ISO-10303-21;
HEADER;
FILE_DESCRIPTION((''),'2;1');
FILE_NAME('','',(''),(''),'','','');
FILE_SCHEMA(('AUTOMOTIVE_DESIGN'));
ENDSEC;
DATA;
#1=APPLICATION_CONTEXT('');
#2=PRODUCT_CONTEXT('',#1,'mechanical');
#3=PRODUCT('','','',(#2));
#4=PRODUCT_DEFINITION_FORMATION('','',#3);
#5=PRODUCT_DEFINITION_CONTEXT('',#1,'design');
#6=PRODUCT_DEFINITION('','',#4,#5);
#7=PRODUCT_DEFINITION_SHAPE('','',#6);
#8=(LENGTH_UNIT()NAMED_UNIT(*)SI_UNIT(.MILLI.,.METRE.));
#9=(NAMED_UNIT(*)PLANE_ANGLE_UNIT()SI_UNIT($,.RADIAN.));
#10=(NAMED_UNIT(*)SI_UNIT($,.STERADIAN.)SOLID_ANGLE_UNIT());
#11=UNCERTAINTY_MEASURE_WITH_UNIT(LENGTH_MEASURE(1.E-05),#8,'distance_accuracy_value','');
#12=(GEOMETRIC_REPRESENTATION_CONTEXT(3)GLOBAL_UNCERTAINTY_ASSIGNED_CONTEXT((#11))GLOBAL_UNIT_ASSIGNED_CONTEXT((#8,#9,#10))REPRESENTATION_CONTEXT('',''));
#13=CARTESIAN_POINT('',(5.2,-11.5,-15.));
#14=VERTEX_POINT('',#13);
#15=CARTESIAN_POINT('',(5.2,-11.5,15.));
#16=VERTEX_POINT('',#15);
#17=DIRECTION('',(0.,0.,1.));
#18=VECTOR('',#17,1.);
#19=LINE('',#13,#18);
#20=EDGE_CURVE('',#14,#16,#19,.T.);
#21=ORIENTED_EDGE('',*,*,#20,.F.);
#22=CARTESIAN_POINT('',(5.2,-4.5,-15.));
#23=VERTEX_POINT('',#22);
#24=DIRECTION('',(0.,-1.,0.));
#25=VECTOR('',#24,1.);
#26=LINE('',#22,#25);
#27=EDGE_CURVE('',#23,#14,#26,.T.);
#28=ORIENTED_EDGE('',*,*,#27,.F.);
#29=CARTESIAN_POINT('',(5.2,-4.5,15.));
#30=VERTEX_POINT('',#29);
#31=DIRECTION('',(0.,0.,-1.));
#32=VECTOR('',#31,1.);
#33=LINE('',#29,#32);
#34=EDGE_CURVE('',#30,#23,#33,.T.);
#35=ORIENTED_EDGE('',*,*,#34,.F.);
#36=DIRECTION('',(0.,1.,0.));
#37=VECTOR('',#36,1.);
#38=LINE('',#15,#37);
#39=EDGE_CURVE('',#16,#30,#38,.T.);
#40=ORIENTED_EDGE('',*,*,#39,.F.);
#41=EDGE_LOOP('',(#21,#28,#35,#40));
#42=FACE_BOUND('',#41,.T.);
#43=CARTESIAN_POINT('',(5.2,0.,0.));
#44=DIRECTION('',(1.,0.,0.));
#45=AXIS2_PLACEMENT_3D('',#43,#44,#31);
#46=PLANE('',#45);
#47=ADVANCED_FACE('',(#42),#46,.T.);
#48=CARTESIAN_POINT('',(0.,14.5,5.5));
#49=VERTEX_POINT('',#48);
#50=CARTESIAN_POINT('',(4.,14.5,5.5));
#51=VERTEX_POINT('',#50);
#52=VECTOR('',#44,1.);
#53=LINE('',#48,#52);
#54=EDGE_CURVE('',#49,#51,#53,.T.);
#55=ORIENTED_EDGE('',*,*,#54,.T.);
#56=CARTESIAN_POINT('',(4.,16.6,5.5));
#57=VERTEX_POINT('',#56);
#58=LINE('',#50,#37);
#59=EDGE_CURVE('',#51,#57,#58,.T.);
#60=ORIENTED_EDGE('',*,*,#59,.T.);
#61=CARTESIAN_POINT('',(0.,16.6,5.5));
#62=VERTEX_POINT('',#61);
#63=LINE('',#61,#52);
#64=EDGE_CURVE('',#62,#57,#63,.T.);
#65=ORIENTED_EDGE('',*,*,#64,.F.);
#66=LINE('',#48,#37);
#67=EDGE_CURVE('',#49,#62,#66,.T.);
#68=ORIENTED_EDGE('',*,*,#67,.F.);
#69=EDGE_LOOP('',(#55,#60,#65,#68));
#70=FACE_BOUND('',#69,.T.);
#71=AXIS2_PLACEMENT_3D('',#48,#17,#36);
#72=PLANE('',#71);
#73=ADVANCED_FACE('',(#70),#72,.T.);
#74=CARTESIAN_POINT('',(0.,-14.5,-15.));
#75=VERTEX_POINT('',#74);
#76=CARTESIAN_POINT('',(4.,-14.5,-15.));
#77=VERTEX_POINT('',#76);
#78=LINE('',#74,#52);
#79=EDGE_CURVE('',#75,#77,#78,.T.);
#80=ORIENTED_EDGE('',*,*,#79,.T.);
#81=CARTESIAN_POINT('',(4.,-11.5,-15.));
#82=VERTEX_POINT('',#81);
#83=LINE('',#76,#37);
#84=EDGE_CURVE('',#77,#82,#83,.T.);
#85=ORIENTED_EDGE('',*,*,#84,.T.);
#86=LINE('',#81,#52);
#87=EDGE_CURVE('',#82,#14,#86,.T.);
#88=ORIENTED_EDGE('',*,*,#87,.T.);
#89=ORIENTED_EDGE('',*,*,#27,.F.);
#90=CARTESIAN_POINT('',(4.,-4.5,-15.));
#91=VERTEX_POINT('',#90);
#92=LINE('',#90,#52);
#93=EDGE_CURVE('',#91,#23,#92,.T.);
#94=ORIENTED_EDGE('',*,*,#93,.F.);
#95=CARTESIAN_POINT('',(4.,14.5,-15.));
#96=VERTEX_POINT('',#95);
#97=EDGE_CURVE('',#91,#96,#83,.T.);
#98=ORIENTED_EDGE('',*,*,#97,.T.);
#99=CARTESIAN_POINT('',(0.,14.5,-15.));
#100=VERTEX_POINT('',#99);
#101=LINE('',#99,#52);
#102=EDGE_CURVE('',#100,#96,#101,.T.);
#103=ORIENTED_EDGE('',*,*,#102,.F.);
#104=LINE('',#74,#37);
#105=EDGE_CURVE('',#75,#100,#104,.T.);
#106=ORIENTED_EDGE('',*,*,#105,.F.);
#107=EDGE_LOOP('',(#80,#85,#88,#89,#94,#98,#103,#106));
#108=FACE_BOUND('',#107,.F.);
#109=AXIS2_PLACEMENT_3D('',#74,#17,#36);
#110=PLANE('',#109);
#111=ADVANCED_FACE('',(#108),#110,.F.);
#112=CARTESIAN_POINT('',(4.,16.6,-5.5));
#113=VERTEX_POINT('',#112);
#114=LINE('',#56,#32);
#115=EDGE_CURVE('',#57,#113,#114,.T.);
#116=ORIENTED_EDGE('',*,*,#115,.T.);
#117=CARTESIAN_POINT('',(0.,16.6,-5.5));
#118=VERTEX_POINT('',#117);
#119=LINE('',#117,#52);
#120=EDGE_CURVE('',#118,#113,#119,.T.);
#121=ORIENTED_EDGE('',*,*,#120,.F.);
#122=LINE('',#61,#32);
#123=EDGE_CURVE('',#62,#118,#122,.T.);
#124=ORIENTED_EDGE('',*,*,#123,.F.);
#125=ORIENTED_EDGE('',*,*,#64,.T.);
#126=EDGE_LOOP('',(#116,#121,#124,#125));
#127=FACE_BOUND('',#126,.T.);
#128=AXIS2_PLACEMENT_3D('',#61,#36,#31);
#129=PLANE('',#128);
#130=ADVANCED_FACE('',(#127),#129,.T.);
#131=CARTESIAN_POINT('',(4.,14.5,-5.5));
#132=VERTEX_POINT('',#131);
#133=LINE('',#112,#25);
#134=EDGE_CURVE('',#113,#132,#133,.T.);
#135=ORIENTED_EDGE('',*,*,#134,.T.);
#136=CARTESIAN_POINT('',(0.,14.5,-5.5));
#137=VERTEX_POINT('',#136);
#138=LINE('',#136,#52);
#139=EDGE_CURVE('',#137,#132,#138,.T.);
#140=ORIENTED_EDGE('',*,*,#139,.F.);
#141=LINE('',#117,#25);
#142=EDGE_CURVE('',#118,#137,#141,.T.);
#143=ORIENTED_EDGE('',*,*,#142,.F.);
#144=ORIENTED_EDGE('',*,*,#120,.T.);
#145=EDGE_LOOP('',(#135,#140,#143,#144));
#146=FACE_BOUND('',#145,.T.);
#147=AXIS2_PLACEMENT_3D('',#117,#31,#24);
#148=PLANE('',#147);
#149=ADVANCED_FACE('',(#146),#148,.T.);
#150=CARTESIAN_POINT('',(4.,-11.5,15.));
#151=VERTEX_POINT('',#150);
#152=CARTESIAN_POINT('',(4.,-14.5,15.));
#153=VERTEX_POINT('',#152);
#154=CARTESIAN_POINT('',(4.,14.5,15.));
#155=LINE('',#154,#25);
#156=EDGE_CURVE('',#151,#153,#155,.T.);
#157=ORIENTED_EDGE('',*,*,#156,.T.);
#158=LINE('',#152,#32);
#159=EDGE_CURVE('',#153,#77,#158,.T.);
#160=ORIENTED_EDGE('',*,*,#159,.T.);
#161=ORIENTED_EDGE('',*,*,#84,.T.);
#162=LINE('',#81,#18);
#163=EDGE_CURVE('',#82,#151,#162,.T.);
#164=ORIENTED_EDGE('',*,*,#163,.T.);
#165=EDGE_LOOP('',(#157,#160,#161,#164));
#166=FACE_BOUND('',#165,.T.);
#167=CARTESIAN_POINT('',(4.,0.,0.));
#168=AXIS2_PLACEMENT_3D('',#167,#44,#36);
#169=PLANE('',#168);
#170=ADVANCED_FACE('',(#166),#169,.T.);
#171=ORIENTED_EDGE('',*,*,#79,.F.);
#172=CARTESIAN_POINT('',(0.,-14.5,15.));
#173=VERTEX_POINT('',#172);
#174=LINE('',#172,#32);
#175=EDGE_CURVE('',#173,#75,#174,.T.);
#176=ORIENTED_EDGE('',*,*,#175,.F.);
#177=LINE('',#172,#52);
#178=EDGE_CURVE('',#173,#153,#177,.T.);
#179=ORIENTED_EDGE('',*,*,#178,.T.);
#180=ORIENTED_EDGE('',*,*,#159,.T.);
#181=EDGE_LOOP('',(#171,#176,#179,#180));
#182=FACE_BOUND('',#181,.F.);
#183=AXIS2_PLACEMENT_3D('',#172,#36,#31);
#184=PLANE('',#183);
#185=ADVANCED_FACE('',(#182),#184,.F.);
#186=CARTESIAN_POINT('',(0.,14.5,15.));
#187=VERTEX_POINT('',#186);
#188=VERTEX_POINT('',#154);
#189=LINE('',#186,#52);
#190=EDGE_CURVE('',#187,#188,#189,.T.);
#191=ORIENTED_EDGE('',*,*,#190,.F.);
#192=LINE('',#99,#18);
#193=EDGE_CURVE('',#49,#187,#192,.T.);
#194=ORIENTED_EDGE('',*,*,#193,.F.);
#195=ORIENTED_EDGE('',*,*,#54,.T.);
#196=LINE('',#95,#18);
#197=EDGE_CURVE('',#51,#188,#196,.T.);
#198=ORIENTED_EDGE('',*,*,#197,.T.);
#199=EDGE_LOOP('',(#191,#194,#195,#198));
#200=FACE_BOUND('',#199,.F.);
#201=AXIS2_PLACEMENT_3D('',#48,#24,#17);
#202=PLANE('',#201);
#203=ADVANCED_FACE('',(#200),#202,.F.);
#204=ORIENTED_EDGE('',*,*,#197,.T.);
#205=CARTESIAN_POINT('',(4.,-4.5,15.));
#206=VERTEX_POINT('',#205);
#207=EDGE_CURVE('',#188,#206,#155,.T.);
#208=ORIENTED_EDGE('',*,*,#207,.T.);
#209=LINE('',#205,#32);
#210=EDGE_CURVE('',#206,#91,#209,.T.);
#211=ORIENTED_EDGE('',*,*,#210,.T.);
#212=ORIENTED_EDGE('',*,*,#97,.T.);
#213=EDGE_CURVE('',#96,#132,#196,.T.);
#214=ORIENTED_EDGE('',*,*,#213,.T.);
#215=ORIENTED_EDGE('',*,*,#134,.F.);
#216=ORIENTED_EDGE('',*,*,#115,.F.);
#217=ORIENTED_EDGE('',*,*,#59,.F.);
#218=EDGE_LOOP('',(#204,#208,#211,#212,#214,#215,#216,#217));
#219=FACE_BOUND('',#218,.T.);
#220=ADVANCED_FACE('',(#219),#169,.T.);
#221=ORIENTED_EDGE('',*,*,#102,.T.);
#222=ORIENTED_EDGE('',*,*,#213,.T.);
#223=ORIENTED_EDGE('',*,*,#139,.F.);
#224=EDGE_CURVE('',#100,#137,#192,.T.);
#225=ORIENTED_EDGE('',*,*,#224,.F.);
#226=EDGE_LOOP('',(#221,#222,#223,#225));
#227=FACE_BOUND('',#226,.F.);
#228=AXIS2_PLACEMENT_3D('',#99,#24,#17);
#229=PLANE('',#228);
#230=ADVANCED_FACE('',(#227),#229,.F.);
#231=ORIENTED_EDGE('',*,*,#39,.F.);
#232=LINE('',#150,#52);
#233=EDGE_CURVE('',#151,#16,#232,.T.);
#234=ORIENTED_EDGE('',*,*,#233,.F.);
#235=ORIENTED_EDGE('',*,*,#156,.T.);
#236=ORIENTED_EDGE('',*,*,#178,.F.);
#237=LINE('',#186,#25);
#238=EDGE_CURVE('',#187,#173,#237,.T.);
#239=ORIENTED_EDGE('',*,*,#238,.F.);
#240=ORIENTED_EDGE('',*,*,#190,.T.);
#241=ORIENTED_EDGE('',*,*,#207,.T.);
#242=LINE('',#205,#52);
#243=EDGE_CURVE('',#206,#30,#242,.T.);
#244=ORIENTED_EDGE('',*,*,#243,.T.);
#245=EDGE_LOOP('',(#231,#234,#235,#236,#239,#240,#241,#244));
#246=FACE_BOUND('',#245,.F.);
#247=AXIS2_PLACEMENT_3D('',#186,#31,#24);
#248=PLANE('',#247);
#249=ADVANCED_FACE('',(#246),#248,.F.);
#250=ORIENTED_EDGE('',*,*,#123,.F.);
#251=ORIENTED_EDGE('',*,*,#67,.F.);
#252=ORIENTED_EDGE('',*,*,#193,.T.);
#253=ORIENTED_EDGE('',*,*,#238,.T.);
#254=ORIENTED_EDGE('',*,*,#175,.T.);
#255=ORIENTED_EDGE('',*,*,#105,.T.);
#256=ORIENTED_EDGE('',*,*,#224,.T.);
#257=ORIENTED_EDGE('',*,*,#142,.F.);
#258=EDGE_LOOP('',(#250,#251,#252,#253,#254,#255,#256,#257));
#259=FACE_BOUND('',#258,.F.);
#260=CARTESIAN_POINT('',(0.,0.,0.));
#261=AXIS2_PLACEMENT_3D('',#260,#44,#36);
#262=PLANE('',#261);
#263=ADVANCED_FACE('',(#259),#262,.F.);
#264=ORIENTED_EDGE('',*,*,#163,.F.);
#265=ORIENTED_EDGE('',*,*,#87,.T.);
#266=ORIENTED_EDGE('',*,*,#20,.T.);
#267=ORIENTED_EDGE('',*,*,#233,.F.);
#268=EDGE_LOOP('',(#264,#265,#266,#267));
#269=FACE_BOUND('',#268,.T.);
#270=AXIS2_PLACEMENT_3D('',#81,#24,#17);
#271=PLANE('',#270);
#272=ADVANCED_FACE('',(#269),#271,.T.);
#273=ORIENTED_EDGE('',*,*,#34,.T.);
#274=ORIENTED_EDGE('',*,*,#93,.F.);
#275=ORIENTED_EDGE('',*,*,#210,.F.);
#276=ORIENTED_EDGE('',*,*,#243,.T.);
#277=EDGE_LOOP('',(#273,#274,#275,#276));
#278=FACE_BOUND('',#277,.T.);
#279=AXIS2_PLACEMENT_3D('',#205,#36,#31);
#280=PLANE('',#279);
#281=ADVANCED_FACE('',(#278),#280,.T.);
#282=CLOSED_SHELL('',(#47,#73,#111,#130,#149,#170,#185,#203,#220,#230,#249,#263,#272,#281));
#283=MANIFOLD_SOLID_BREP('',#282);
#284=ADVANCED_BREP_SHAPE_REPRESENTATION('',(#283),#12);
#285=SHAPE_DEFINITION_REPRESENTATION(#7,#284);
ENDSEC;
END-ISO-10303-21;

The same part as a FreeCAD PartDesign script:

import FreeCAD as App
import Part
import Sketcher
Q = App.Units.Quantity


def add_polygon(sketch, points):
    """Adds a closed chain of lines whose ends are joined by coincident constraints."""
    first, n = sketch.GeometryCount, len(points)
    for a, b in zip(points, points[1:] + points[:1]):
        sketch.addGeometry(Part.LineSegment(App.Vector(*a, 0), App.Vector(*b, 0)), False)
    for i in range(n):
        sketch.addConstraint(Sketcher.Constraint("Coincident", first + i, 2, first + (i + 1) % n, 1))

doc = App.newDocument("Part")
body = doc.addObject("PartDesign::Body", "Body")

sketch1 = doc.addObject("Sketcher::SketchObject", "Sketch")
body.addObject(sketch1)
sketch1.AttachmentSupport = (doc.YZ_Plane, [""])
sketch1.MapMode = "FlatFace"
add_polygon(sketch1, [(14.5, 5.5), (14.5, 15), (-14.5, 15), (-14.5, -15), (14.5, -15), (14.5, -5.5), (16.6, -5.5), (16.6, 5.5)])
sketch1.addConstraint([
    Sketcher.Constraint("Vertical", 0),
    Sketcher.Constraint("Horizontal", 1),
    Sketcher.Constraint("Vertical", 2),
    Sketcher.Constraint("Horizontal", 3),
    Sketcher.Constraint("Vertical", 4),
    Sketcher.Constraint("Horizontal", 5),
    Sketcher.Constraint("Vertical", 6),
    Sketcher.Constraint("Horizontal", 7),
    Sketcher.Constraint("Symmetric", 0, 2, 2, 2, -1, 1),
    Sketcher.Constraint("Symmetric", 4, 2, 7, 2, -1),
    Sketcher.Constraint("DistanceX", 1, 2, 1, 1, Q("29 mm")),
    Sketcher.Constraint("DistanceY", 2, 2, 2, 1, Q("30 mm")),
    Sketcher.Constraint("DistanceY", 6, 1, 6, 2, Q("11 mm")),
    Sketcher.Constraint("DistanceX", 5, 1, 5, 2, Q("2.1 mm")),
])
pad1 = doc.addObject("PartDesign::Pad", "Pad")
body.addObject(pad1)
pad1.Profile = sketch1
pad1.Length = 4

sketch2 = doc.addObject("Sketcher::SketchObject", "Sketch001")
body.addObject(sketch2)
sketch2.AttachmentSupport = (doc.YZ_Plane, [""])
sketch2.MapMode = "FlatFace"
sketch2.AttachmentOffset = App.Placement(App.Vector(0, 0, 4), App.Rotation())
add_polygon(sketch2, [(-4.5, -15), (-4.5, 15), (-11.5, 15), (-11.5, -15)])
sketch2.addConstraint([
    Sketcher.Constraint("Vertical", 0),
    Sketcher.Constraint("Horizontal", 1),
    Sketcher.Constraint("Vertical", 2),
    Sketcher.Constraint("Horizontal", 3),
    Sketcher.Constraint("DistanceX", 1, 2, 1, 1, Q("7 mm")),
    Sketcher.Constraint("DistanceY", 0, 1, 0, 2, Q("30 mm")),
    Sketcher.Constraint("DistanceY", -1, 1, 0, 2, Q("15 mm")),
    Sketcher.Constraint("DistanceX", 0, 2, -1, 1, Q("4.5 mm")),
])
pad2 = doc.addObject("PartDesign::Pad", "Pad001")
body.addObject(pad2)
pad2.Profile = sketch2
pad2.Length = 1.2

doc.recompute()
